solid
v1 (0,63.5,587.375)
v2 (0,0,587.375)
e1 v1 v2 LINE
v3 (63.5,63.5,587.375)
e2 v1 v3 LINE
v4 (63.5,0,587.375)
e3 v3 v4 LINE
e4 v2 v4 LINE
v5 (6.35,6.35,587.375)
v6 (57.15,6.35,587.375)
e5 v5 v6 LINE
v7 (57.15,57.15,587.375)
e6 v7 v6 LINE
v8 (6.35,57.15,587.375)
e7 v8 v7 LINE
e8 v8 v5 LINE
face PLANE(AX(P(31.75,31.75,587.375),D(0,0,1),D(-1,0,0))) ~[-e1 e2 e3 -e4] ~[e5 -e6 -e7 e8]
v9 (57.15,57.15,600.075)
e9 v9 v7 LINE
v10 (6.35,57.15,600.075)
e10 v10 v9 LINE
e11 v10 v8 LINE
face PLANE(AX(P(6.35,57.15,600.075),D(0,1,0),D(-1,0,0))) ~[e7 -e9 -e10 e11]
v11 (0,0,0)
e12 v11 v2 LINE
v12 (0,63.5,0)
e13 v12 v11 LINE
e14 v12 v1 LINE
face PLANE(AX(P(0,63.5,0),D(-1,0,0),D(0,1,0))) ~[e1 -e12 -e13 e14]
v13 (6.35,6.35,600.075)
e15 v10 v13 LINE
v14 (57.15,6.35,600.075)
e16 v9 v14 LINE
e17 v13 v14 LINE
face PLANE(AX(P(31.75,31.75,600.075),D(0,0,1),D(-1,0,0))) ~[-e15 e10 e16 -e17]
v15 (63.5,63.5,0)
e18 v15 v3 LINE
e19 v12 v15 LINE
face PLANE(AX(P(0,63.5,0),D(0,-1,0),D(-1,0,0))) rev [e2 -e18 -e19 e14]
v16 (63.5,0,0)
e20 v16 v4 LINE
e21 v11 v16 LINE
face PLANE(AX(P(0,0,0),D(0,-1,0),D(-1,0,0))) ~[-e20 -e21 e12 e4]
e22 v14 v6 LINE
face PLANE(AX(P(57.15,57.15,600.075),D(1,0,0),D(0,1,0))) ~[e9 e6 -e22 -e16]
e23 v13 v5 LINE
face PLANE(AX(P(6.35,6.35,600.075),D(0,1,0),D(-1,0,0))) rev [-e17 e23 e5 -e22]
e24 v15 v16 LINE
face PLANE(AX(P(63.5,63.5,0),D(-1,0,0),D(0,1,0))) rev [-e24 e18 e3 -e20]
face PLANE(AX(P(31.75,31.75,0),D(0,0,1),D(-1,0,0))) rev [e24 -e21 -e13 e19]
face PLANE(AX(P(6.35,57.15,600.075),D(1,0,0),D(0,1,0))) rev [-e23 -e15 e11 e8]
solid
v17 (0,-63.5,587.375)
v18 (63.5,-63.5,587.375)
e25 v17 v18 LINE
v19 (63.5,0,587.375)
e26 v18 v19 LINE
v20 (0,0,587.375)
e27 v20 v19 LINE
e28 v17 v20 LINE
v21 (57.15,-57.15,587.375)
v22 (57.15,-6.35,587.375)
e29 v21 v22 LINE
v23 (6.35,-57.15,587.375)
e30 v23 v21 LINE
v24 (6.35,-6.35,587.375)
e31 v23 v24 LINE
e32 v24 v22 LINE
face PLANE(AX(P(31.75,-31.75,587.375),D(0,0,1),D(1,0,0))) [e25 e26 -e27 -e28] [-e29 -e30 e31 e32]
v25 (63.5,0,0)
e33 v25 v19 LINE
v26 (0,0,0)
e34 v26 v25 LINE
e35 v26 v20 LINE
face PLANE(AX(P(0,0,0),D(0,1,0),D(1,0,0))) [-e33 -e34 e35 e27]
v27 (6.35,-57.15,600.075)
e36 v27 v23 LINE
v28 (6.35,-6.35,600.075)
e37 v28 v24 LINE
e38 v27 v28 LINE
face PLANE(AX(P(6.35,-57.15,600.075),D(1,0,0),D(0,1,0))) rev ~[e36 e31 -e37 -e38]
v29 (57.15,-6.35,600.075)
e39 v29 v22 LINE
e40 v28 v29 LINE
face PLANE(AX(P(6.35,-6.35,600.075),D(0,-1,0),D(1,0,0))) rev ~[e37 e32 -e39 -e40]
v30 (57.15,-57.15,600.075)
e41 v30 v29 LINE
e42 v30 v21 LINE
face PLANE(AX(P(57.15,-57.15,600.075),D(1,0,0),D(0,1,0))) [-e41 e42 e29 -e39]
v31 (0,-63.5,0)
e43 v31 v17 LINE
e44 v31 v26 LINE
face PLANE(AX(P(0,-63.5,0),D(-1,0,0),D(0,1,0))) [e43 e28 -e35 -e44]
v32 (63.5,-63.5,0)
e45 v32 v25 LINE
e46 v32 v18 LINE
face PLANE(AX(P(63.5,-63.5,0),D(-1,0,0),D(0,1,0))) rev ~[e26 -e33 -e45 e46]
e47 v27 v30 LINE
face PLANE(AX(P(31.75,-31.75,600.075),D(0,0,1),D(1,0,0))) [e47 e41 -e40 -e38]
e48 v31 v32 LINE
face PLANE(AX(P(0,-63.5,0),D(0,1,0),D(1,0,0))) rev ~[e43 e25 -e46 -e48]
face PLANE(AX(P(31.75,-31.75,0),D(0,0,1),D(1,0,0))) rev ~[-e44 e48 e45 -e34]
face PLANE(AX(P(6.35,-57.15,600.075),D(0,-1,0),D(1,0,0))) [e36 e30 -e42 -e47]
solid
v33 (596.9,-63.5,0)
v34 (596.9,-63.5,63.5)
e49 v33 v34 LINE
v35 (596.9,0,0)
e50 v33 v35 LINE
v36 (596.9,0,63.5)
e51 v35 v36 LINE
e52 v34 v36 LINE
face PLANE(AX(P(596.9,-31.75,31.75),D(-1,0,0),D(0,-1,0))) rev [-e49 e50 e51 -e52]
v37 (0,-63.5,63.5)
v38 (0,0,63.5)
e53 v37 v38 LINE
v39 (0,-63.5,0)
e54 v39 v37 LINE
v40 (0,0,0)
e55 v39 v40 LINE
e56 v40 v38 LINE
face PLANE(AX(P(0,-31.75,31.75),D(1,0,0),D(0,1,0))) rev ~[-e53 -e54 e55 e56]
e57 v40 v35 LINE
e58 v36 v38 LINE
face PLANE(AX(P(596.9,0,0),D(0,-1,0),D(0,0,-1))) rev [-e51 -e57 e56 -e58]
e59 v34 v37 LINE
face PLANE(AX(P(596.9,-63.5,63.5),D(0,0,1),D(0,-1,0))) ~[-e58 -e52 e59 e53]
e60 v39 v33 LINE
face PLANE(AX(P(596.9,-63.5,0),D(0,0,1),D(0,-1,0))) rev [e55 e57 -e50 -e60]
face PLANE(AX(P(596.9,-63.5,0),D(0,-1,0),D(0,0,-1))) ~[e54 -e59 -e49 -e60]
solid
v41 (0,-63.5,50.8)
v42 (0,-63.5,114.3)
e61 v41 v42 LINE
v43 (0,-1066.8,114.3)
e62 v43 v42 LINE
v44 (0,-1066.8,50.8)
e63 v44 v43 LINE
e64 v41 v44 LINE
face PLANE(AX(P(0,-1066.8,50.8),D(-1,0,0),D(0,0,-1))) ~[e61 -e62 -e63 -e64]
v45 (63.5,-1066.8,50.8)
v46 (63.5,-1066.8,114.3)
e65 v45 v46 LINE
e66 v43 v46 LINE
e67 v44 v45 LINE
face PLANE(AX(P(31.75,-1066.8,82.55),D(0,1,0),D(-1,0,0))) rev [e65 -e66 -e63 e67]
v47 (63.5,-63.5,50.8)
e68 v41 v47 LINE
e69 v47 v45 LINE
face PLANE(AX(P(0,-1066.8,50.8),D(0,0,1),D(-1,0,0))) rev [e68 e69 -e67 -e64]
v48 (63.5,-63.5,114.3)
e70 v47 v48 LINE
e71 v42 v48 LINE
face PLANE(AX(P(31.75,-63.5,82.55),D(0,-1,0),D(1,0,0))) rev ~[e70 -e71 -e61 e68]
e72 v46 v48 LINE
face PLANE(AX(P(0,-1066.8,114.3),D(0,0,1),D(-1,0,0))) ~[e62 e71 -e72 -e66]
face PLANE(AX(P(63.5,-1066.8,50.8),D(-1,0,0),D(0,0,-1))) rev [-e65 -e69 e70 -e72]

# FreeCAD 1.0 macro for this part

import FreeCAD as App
import Part
import Sketcher
Q = App.Units.Quantity


def add_polygon(sketch, points):
    """Adds a closed chain of lines whose ends are joined by coincident constraints."""
    first, n = sketch.GeometryCount, len(points)
    for a, b in zip(points, points[1:] + points[:1]):
        sketch.addGeometry(Part.LineSegment(App.Vector(*a, 0), App.Vector(*b, 0)), False)
    for i in range(n):
        sketch.addConstraint(Sketcher.Constraint("Coincident", first + i, 2, first + (i + 1) % n, 1))

doc = App.newDocument("Part")
body = doc.addObject("PartDesign::Body", "Body")

# Sketch on XY plane
sketch1 = body.newObject("Sketcher::SketchObject", "Sketch")
sketch1.AttachmentSupport = (doc.getObject("XY_Plane"), [""])
sketch1.MapMode = "FlatFace"
add_polygon(sketch1, [(0, 0), (0, -63.5), (63.5, -63.5), (63.5, 0)])  # lines 0-3
sketch1.addConstraint(Sketcher.Constraint("Vertical", 0))
sketch1.addConstraint(Sketcher.Constraint("Horizontal", 1))
sketch1.addConstraint(Sketcher.Constraint("Vertical", 2))
sketch1.addConstraint(Sketcher.Constraint("Horizontal", 3))
sketch1.addConstraint(Sketcher.Constraint("Coincident", 3, 2, -1, 1))
sketch1.addConstraint(Sketcher.Constraint("Equal", 3, 0))
sketch1.addConstraint(Sketcher.Constraint("DistanceX", 1, 1, 1, 2, Q("2.5 in")))
pad1 = body.newObject("PartDesign::Pad", "Pad")
pad1.Profile = sketch1
pad1.Length = Q("23.625 in")

# Sketch on XY plane
sketch2 = body.newObject("Sketcher::SketchObject", "Sketch001")
sketch2.AttachmentSupport = (doc.getObject("XY_Plane"), [""])
sketch2.MapMode = "FlatFace"
sketch2.AttachmentOffset = App.Placement(App.Vector(0, 0, 23.625 * 25.4), App.Rotation())
add_polygon(sketch2, [(0, 0), (0, -63.5), (63.5, -63.5), (63.5, 0)])  # lines 0-3
add_polygon(sketch2, [(57.15, -57.15), (6.35, -57.15), (6.35, -6.35), (57.15, -6.35)])  # lines 4-7
sketch2.addConstraint(Sketcher.Constraint("Vertical", 0))
sketch2.addConstraint(Sketcher.Constraint("Horizontal", 1))
sketch2.addConstraint(Sketcher.Constraint("Vertical", 2))
sketch2.addConstraint(Sketcher.Constraint("Horizontal", 3))
sketch2.addConstraint(Sketcher.Constraint("Horizontal", 4))
sketch2.addConstraint(Sketcher.Constraint("Vertical", 5))
sketch2.addConstraint(Sketcher.Constraint("Horizontal", 6))
sketch2.addConstraint(Sketcher.Constraint("Vertical", 7))
sketch2.addConstraint(Sketcher.Constraint("Coincident", 3, 2, -1, 1))
sketch2.addConstraint(Sketcher.Constraint("Equal", 3, 0))
sketch2.addConstraint(Sketcher.Constraint("Equal", 6, 5))
sketch2.addConstraint(Sketcher.Constraint("DistanceX", 4, 2, 4, 1, Q("2 in")))
sketch2.addConstraint(Sketcher.Constraint("DistanceX", 1, 1, 1, 2, Q("2.5 in")))
sketch2.addConstraint(Sketcher.Constraint("DistanceX", -1, 1, 4, 2, Q("0.25 in")))
sketch2.addConstraint(Sketcher.Constraint("DistanceY", 4, 2, -1, 1, Q("2.25 in")))
pocket1 = body.newObject("PartDesign::Pocket", "Pocket")
pocket1.Profile = sketch2
pocket1.Length = Q("0.5 in")
body2 = doc.addObject("PartDesign::Body", "Body001")

# Sketch on XZ plane
sketch3 = body2.newObject("Sketcher::SketchObject", "Sketch002")
sketch3.AttachmentSupport = (doc.getObject("XZ_Plane001"), [""])
sketch3.MapMode = "FlatFace"
sketch3.AttachmentOffset = App.Placement(App.Vector(0, 0, 2.5 * 25.4), App.Rotation())
add_polygon(sketch3, [(0, 114.3), (0, 50.8), (63.5, 50.8), (63.5, 114.3)])  # lines 0-3
sketch3.addConstraint(Sketcher.Constraint("Vertical", 0))
sketch3.addConstraint(Sketcher.Constraint("Horizontal", 1))
sketch3.addConstraint(Sketcher.Constraint("Vertical", 2))
sketch3.addConstraint(Sketcher.Constraint("Horizontal", 3))
sketch3.addConstraint(Sketcher.Constraint("PointOnObject", 0, 2, -2))
sketch3.addConstraint(Sketcher.Constraint("Equal", 3, 0))
sketch3.addConstraint(Sketcher.Constraint("DistanceX", 1, 1, 1, 2, Q("2.5 in")))
sketch3.addConstraint(Sketcher.Constraint("DistanceY", -1, 1, 0, 2, Q("2 in")))
pad2 = body2.newObject("PartDesign::Pad", "Pad001")
pad2.Profile = sketch3
pad2.Length = Q("19.75 in")
body3 = doc.addObject("PartDesign::Body", "Body002")
doc.recompute()

body3.BaseFeature = body2
doc.recompute()

mirroring = doc.addObject("Part::Mirroring", "Mirroring")
mirroring.Source = body2
mirroring.Base = App.Vector(31.75, -565.15, 82.55)
mirroring.Normal = App.Vector(0, -1, 0)
body4 = doc.addObject("PartDesign::Body", "Body003")
body4.BaseFeature = mirroring
boolean = body3.newObject("PartDesign::Boolean", "Boolean")
boolean.Type = "Fuse"
boolean.addObjects([body4])
doc.recompute()
body5 = doc.addObject("PartDesign::Body", "Body004")

# Sketch on YZ plane
sketch4 = body5.newObject("Sketcher::SketchObject", "Sketch003")
sketch4.AttachmentSupport = (doc.getObject("YZ_Plane004"), [""])
sketch4.MapMode = "FlatFace"
add_polygon(sketch4, [(-63.5, 63.5), (-63.5, 0), (0, 0), (0, 63.5)])  # lines 0-3
sketch4.addConstraint(Sketcher.Constraint("Vertical", 0))
sketch4.addConstraint(Sketcher.Constraint("Horizontal", 1))
sketch4.addConstraint(Sketcher.Constraint("Vertical", 2))
sketch4.addConstraint(Sketcher.Constraint("Horizontal", 3))
sketch4.addConstraint(Sketcher.Constraint("Coincident", 1, 2, -1, 1))
sketch4.addConstraint(Sketcher.Constraint("Equal", 3, 0))
sketch4.addConstraint(Sketcher.Constraint("DistanceX", 1, 1, 1, 2, Q("2.5 in")))
pad3 = body5.newObject("PartDesign::Pad", "Pad002")
pad3.Profile = sketch4
pad3.Length = Q("11.75 in")
body6 = doc.addObject("PartDesign::Body", "Body005")
doc.recompute()

body6.BaseFeature = body5
doc.recompute()

mirroring2 = doc.addObject("Part::Mirroring", "Mirroring001")
mirroring2.Source = body5
mirroring2.Base = App.Vector(298.45, -31.75, 31.75)
mirroring2.Normal = App.Vector(1, 0, 0)
body7 = doc.addObject("PartDesign::Body", "Body006")
body7.BaseFeature = mirroring2
boolean2 = body6.newObject("PartDesign::Boolean", "Boolean001")
boolean2.Type = "Fuse"
boolean2.addObjects([body7])
doc.recompute()
body8 = doc.addObject("PartDesign::Body", "Body007")
doc.recompute()

mirroring3 = doc.addObject("Part::Mirroring", "Mirroring002")
mirroring3.Source = body
mirroring3.Base = App.Vector(0, 0, 0)
mirroring3.Normal = App.Vector(0, -1, 0)
body8.BaseFeature = mirroring3
doc.recompute()
mirroring.Visibility = False
mirroring2.Visibility = False
mirroring3.Visibility = False

doc.recompute()
